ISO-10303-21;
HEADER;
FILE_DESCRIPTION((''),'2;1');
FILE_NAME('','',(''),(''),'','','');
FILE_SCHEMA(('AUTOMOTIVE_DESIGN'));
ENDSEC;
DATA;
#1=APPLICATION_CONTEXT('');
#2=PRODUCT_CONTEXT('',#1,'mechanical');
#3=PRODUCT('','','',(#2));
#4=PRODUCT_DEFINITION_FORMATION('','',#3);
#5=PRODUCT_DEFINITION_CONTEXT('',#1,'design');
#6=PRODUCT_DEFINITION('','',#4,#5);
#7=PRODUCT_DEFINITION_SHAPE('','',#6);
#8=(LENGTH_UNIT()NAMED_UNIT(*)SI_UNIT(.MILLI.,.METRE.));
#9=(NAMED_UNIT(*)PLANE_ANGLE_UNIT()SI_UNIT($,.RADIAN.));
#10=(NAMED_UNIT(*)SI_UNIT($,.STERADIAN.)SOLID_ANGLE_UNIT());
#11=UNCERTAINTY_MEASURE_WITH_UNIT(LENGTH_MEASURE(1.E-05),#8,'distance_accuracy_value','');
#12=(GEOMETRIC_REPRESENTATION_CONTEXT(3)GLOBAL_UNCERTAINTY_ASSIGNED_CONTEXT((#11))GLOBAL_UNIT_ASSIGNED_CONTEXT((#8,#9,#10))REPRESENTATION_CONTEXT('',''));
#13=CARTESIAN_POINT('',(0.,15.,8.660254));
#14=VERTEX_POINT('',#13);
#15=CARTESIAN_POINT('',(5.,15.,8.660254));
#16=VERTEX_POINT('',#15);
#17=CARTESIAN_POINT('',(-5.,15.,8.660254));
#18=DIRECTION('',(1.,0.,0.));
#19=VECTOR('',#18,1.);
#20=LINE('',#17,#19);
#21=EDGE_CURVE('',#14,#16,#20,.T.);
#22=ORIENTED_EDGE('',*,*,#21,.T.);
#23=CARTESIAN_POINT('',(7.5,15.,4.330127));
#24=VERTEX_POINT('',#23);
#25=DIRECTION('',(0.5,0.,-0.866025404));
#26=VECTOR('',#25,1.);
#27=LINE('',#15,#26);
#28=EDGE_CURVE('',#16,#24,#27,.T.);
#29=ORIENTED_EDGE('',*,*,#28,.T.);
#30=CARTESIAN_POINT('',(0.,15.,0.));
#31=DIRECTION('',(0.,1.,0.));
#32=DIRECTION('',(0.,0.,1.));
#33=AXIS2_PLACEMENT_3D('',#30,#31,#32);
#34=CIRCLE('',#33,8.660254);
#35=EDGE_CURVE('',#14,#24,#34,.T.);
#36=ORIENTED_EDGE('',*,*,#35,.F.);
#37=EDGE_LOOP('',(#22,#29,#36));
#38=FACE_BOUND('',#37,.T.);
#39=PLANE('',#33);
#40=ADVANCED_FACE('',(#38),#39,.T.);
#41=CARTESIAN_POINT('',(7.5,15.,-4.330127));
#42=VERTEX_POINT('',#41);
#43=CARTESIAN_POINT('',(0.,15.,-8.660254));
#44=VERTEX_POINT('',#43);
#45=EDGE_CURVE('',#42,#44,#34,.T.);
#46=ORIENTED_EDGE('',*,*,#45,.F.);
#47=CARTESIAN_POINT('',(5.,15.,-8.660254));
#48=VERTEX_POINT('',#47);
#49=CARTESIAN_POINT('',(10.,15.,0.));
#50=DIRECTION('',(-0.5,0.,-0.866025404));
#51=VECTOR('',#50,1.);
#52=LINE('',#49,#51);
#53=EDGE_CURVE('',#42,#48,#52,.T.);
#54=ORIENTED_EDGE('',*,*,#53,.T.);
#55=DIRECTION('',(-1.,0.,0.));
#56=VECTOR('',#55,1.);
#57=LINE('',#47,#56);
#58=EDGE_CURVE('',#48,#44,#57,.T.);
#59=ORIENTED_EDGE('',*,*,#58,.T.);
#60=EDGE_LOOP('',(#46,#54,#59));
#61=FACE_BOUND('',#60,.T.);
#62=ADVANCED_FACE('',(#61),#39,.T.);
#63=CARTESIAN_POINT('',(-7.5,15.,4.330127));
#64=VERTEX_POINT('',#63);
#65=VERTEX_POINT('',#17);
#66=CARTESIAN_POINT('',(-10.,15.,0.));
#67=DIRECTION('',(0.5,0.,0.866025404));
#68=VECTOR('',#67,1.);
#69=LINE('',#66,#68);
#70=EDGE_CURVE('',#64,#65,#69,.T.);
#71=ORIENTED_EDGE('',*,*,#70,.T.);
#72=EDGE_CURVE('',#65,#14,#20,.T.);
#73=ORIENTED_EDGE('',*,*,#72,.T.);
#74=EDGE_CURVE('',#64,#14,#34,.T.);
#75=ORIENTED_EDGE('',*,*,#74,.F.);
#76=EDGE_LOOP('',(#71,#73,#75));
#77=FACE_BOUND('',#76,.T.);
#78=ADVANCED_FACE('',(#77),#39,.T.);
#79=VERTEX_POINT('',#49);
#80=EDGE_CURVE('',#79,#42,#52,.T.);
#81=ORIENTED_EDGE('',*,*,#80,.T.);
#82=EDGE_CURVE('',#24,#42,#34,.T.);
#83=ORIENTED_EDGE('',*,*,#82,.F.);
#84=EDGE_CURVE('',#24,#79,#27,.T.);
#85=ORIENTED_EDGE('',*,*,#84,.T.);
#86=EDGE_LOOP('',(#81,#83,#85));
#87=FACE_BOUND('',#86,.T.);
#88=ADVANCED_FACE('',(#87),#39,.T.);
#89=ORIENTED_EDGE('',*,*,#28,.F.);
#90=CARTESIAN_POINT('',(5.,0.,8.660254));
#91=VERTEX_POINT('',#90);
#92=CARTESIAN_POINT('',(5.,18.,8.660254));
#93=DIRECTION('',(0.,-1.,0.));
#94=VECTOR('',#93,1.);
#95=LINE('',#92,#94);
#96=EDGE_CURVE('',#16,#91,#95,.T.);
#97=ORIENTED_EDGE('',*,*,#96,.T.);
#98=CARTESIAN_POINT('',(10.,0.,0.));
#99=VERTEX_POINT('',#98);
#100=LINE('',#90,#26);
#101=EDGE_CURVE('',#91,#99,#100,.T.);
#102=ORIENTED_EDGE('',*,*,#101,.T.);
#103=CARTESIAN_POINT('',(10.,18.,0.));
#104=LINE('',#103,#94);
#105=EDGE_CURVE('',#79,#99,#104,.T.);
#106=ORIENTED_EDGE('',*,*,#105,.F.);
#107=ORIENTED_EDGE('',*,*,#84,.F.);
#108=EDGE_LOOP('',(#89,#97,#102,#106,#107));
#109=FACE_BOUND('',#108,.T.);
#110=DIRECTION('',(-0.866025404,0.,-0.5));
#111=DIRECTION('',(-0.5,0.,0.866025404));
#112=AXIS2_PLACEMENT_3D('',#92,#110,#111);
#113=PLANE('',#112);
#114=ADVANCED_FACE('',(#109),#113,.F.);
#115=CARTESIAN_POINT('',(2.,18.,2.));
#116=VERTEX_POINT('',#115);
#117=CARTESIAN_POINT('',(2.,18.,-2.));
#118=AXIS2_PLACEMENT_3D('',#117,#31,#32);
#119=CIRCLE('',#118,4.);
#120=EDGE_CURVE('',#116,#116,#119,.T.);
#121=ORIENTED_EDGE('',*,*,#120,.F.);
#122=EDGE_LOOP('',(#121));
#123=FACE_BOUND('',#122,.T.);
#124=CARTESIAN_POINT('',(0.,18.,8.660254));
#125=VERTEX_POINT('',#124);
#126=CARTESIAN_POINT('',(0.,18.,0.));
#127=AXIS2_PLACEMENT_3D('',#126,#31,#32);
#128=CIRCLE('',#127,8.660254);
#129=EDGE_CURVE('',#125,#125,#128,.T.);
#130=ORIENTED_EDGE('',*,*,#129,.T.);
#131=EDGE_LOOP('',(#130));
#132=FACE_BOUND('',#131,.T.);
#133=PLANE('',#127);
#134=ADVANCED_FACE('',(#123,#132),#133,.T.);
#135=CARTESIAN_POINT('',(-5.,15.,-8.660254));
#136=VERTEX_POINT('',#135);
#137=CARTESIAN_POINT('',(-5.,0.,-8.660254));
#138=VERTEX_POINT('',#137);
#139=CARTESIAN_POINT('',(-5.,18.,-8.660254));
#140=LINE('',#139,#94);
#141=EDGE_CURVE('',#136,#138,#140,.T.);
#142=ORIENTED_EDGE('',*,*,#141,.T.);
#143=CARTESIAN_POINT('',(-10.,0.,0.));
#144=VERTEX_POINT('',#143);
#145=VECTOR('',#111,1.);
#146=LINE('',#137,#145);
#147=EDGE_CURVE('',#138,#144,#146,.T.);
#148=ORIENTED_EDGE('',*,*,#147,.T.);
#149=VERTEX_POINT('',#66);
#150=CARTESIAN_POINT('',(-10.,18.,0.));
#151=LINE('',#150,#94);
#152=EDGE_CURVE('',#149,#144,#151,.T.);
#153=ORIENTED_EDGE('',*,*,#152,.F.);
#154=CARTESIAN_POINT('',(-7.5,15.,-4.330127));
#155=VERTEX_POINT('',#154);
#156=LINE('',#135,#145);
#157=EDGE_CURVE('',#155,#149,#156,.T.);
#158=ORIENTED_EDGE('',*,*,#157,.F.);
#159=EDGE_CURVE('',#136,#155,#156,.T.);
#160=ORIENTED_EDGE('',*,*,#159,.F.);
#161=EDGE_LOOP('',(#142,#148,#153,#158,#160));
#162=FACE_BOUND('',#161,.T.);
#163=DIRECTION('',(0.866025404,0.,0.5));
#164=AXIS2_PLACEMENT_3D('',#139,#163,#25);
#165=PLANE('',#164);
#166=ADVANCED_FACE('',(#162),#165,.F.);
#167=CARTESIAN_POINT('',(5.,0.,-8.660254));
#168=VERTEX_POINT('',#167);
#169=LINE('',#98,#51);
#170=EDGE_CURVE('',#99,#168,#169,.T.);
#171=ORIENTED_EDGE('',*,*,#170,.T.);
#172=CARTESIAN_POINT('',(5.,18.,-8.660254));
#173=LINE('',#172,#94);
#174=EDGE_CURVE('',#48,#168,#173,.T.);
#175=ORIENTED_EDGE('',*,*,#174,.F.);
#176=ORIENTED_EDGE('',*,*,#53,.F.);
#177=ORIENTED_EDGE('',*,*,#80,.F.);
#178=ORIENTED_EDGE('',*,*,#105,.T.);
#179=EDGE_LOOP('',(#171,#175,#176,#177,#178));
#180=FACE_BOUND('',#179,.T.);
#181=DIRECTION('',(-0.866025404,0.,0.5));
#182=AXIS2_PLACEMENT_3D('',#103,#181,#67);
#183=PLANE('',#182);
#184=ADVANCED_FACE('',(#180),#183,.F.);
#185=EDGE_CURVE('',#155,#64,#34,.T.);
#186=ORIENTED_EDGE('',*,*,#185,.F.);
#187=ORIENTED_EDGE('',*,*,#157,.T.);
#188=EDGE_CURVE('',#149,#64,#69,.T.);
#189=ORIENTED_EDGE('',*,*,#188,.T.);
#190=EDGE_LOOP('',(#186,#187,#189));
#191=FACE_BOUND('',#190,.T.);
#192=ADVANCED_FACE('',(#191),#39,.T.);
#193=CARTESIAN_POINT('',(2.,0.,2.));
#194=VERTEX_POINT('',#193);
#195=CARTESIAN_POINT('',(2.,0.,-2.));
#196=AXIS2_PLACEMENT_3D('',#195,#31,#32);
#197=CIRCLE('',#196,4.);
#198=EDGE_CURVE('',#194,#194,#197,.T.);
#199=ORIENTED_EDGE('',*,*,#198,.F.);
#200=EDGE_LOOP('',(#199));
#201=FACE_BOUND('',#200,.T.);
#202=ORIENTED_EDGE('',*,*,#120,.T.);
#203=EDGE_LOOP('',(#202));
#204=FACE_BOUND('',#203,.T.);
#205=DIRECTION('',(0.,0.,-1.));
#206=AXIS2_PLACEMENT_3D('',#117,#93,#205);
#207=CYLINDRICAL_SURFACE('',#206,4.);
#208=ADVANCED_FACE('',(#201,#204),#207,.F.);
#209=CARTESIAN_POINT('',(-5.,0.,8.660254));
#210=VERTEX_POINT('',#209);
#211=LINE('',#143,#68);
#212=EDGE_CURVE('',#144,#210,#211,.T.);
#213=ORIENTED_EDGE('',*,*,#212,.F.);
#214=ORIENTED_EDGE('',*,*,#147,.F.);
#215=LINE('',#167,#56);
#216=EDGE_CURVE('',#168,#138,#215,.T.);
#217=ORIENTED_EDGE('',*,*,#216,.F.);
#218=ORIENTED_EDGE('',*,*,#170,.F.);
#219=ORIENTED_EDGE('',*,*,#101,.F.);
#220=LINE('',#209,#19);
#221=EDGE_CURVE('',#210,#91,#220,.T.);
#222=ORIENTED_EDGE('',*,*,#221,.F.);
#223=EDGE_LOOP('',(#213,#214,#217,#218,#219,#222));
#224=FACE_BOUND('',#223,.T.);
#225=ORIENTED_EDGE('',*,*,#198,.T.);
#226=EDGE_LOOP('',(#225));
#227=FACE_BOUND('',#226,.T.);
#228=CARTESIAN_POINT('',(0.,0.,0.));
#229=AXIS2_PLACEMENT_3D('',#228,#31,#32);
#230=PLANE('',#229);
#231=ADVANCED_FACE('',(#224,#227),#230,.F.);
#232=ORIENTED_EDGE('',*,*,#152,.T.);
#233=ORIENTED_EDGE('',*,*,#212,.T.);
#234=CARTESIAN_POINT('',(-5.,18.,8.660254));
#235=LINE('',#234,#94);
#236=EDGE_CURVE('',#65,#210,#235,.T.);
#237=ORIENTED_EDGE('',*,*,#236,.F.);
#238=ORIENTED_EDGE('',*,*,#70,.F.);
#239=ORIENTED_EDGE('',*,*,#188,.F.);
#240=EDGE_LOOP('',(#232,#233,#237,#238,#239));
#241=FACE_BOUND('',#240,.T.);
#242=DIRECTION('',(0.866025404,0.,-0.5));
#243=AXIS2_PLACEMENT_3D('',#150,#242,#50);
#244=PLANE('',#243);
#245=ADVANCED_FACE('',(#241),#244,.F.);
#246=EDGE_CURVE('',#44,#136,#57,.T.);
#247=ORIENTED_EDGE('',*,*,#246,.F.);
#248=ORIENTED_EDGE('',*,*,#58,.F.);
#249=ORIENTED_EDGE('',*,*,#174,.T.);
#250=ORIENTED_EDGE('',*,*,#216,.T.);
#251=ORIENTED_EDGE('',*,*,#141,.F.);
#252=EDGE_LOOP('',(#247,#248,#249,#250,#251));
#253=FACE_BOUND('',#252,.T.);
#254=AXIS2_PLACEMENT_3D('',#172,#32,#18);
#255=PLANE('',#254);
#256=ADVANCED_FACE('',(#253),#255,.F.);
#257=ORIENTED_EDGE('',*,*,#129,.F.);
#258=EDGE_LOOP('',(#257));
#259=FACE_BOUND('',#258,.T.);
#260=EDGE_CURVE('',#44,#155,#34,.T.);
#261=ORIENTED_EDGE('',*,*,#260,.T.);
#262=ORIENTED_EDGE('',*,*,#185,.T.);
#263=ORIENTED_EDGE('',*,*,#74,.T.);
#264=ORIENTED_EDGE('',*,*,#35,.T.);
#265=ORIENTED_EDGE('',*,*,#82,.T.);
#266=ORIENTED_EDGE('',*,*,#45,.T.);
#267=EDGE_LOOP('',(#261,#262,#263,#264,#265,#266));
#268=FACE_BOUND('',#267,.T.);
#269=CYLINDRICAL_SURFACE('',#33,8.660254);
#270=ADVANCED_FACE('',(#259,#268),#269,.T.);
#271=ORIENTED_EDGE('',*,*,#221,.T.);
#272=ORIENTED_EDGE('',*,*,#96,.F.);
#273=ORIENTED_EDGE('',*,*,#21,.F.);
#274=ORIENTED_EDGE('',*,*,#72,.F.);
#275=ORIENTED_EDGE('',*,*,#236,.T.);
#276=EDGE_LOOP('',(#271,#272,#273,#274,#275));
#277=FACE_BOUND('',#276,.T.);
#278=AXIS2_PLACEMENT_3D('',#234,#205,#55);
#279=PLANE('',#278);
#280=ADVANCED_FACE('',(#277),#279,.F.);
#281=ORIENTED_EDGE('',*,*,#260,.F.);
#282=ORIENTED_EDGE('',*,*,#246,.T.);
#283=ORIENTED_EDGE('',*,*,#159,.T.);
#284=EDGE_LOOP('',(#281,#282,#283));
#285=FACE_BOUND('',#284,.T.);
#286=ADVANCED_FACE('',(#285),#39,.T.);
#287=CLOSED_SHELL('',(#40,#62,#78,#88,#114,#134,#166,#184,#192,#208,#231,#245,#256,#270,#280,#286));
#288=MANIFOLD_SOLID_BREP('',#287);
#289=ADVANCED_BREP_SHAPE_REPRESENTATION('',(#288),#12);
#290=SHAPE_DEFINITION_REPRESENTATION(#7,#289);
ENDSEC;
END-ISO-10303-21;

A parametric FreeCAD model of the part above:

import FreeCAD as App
import Part
import Sketcher

V = App.Vector
Q = App.Units.Quantity

doc = App.newDocument("Part")
body = doc.addObject("PartDesign::Body", "Body")

sketch1 = body.newObject("Sketcher::SketchObject", "Sketch")
sketch1.AttachmentSupport = (doc.getObject("XZ_Plane"), [""])
sketch1.MapMode = "FlatFace"
sketch1.addGeometry([
    Part.LineSegment(V(10, 0, 0), V(5, -8.7, 0)),
    Part.LineSegment(V(5, -8.7, 0), V(-5, -8.7, 0)),
    Part.LineSegment(V(-5, -8.7, 0), V(-10, 0, 0)),
    Part.LineSegment(V(-10, 0, 0), V(-5, 8.7, 0)),
    Part.LineSegment(V(-5, 8.7, 0), V(5, 8.7, 0)),
    Part.LineSegment(V(5, 8.7, 0), V(10, 0, 0)),
    Part.Circle(V(2, -2, 0), V(0, 0, 1), 4),
], False)
sketch1.addConstraint([
    Sketcher.Constraint("Coincident", 0, 2, 1, 1),
    Sketcher.Constraint("Coincident", 1, 2, 2, 1),
    Sketcher.Constraint("Coincident", 2, 2, 3, 1),
    Sketcher.Constraint("Coincident", 3, 2, 4, 1),
    Sketcher.Constraint("Coincident", 4, 2, 5, 1),
    Sketcher.Constraint("Coincident", 5, 2, 0, 1),
    Sketcher.Constraint("Horizontal", 1),
    Sketcher.Constraint("Horizontal", 4),
    Sketcher.Constraint("Symmetric", 0, 2, 3, 2, -1, 1),
    Sketcher.Constraint("Symmetric", 2, 2, 5, 2, -1, 1),
    Sketcher.Constraint("PointOnObject", 2, 2, -1),
    Sketcher.Constraint("Parallel", 2, 5),
    Sketcher.Constraint("Vertical", 1, 2, 3, 2),
    Sketcher.Constraint("Diameter", 6, 8.0),
    Sketcher.Constraint("DistanceX", 1, 2, 1, 1, 10.0),
    Sketcher.Constraint("Angle", 0, Q("-120 deg")),
    Sketcher.Constraint("Distance", 0, 10.0),
    Sketcher.Constraint("DistanceX", -1, 1, 6, 3, 2.0),
    Sketcher.Constraint("DistanceY", 6, 3, -1, 1, 2.0),
])
pad1 = body.newObject("PartDesign::Pad", "Pad")
pad1.Profile = sketch1
pad1.Length = 18
pad1.Reversed = True

sketch2 = body.newObject("Sketcher::SketchObject", "Sketch001")
sketch2.AttachmentSupport = (doc.getObject("XZ_Plane"), [""])
sketch2.MapMode = "FlatFace"
sketch2.AttachmentOffset = App.Placement(V(0, 0, -18), App.Rotation())
sketch2.addGeometry([
    Part.Circle(V(0, 0, 0), V(0, 0, 1), 14),
    Part.Circle(V(0, 0, 0), V(0, 0, 1), 9),
], False)
sketch2.addConstraint([
    Sketcher.Constraint("Coincident", 0, 3, -1, 1),
    Sketcher.Constraint("Coincident", 1, 3, -1, 1),
    Sketcher.Constraint("Diameter", 0, 27.95311),
    Sketcher.Constraint("Diameter", 1, 17.320508),
])
pocket1 = body.newObject("PartDesign::Pocket", "Pocket")
pocket1.Profile = sketch2
pocket1.Length = 3
pocket1.Reversed = True

doc.recompute()
